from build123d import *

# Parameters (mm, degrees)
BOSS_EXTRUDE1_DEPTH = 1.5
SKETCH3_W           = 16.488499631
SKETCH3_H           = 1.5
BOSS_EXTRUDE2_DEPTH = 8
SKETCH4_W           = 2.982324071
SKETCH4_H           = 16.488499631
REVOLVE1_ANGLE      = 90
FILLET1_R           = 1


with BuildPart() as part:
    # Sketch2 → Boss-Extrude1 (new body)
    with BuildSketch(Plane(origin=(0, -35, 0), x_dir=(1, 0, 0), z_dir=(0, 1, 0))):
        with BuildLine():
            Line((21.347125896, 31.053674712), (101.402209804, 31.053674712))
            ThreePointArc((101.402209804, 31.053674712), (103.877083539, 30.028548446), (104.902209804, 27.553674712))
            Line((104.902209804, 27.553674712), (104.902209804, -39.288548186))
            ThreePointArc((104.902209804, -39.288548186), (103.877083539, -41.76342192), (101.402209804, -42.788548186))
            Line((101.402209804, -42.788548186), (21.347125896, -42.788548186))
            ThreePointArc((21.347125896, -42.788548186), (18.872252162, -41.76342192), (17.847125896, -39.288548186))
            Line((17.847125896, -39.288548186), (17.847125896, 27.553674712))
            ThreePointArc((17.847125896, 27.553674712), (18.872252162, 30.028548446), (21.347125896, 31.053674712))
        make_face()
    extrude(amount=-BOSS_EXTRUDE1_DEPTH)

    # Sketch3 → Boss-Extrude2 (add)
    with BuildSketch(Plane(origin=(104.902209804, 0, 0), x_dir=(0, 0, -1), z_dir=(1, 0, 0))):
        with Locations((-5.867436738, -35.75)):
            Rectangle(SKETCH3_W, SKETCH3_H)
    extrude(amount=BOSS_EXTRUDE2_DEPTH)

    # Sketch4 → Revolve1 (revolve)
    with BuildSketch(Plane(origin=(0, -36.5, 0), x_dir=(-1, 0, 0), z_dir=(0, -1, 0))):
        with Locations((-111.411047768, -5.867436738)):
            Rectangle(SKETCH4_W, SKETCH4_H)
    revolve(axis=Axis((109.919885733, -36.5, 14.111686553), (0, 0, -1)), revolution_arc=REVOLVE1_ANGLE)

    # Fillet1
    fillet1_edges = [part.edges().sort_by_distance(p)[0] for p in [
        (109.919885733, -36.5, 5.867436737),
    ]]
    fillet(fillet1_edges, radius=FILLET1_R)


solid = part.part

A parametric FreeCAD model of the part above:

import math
import FreeCAD as App
import Part
import Sketcher
from FreeCAD import Vector
Q = App.Units.Quantity


def edges_at(feature, points):
    """Names of the edges that pass closest to the given points."""
    edges = feature.Shape.Edges
    near = lambda p: min(range(len(edges)), key=lambda i: edges[i].distToShape(Part.Vertex(*p))[0])
    return sorted({f"Edge{near(p) + 1}" for p in points})


def add_polygon(sketch, points):
    """Adds a closed chain of lines whose ends are joined by coincident constraints."""
    first, n = sketch.GeometryCount, len(points)
    for a, b in zip(points, points[1:] + points[:1]):
        sketch.addGeometry(Part.LineSegment(App.Vector(*a, 0), App.Vector(*b, 0)), False)
    for i in range(n):
        sketch.addConstraint(Sketcher.Constraint("Coincident", first + i, 2, first + (i + 1) % n, 1))

doc = App.newDocument("Part")
params = doc.addObject("Spreadsheet::Sheet", "Params")
for row, (alias, value) in enumerate([
    ("sketch1_radius", "3.5 mm"),
    ("pad1_length", "1.5 mm"),
    ("sketch2_width", "1.5 mm"),
    ("pad2_length", "8 mm"),
    ("revolution_angle", "90 deg"),
    ("fillet_radius", "1 mm"),
], start=1):
    params.set(f"A{row}", alias)
    params.set(f"B{row}", "=" + value)
    params.setAlias(f"B{row}", alias)

body = doc.addObject("PartDesign::Body", "Body")

# Sketch on XZ plane
sketch1 = doc.addObject("Sketcher::SketchObject", "Sketch")
body.addObject(sketch1)
sketch1.AttachmentSupport = (doc.XZ_Plane, [""])
sketch1.MapMode = "FlatFace"
sketch1.AttachmentOffset = App.Placement(Vector(0, 0, 35), App.Rotation())
sketch1.addGeometry([
    Part.LineSegment(Vector(101.40221, -31.053675, 0), Vector(21.347126, -31.053675, 0)),  # 0
    Part.ArcOfCircle(Part.Circle(Vector(21.347126, -27.553675, 0), Vector(0, 0, 1), 3.5), math.radians(-180), math.radians(-90)),  # 1
    Part.LineSegment(Vector(17.847126, -27.553675, 0), Vector(17.847126, 39.288548, 0)),  # 2
    Part.ArcOfCircle(Part.Circle(Vector(21.347126, 39.288548, 0), Vector(0, 0, 1), 3.5), math.radians(90), math.radians(180)),  # 3
    Part.LineSegment(Vector(21.347126, 42.788548, 0), Vector(101.40221, 42.788548, 0)),  # 4
    Part.ArcOfCircle(Part.Circle(Vector(101.40221, 39.288548, 0), Vector(0, 0, 1), 3.5), math.radians(0), math.radians(90)),  # 5
    Part.LineSegment(Vector(104.90221, 39.288548, 0), Vector(104.90221, -27.553675, 0)),  # 6
    Part.ArcOfCircle(Part.Circle(Vector(101.40221, -27.553675, 0), Vector(0, 0, 1), 3.5), math.radians(-90), math.radians(0)),  # 7
], False)
sketch1.addConstraint([
    Sketcher.Constraint("Tangent", 0, 2, 1, 2),
    Sketcher.Constraint("Tangent", 1, 1, 2, 1),
    Sketcher.Constraint("Tangent", 2, 2, 3, 2),
    Sketcher.Constraint("Tangent", 3, 1, 4, 1),
    Sketcher.Constraint("Tangent", 4, 2, 5, 2),
    Sketcher.Constraint("Tangent", 5, 1, 6, 1),
    Sketcher.Constraint("Tangent", 6, 2, 7, 2),
    Sketcher.Constraint("Tangent", 7, 1, 0, 1),
    Sketcher.Constraint("Horizontal", 0),
    Sketcher.Constraint("Vertical", 2),
    Sketcher.Constraint("Horizontal", 4),
    Sketcher.Constraint("Vertical", 6),
    Sketcher.Constraint("Equal", 1, 3),
    Sketcher.Constraint("Equal", 3, 5),
    Sketcher.Constraint("Equal", 5, 7),
    Sketcher.Constraint("Radius", 1, Q("3.5 mm")),
    Sketcher.Constraint("DistanceX", 0, 2, 0, 1, Q("80.055084 mm")),
    Sketcher.Constraint("DistanceY", 2, 1, 2, 2, Q("66.842223 mm")),
    Sketcher.Constraint("DistanceY", -1, 1, 3, 3, Q("39.288548 mm")),
    Sketcher.Constraint("DistanceX", -1, 1, 5, 3, Q("101.40221 mm")),
])
sketch1.setExpression("Constraints[15]", "Params.sketch1_radius")
pad1 = doc.addObject("PartDesign::Pad", "Pad")
body.addObject(pad1)
pad1.Profile = sketch1
pad1.setExpression("Length", "Params.pad1_length")

# Sketch on YZ plane
sketch2 = doc.addObject("Sketcher::SketchObject", "Sketch001")
body.addObject(sketch2)
sketch2.AttachmentSupport = (doc.YZ_Plane, [""])
sketch2.MapMode = "FlatFace"
sketch2.AttachmentOffset = App.Placement(Vector(0, 0, 104.90221), App.Rotation())
add_polygon(sketch2, [(-35, 14.111687), (-36.5, 14.111687), (-36.5, -2.376813), (-35, -2.376813)])  # lines 0-3
sketch2.addConstraint([
    Sketcher.Constraint("Horizontal", 0),
    Sketcher.Constraint("Vertical", 1),
    Sketcher.Constraint("Horizontal", 2),
    Sketcher.Constraint("Vertical", 3),
    Sketcher.Constraint("DistanceX", 0, 2, 0, 1, Q("1.5 mm")),
    Sketcher.Constraint("DistanceX", 2, 2, -1, 1, Q("35 mm")),
    Sketcher.Constraint("DistanceY", 1, 2, 1, 1, Q("16.4885 mm")),
    Sketcher.Constraint("DistanceY", -1, 1, 0, 2, Q("14.111687 mm")),
])
sketch2.setExpression("Constraints[8]", "Params.sketch2_width")
pad2 = doc.addObject("PartDesign::Pad", "Pad001")
body.addObject(pad2)
pad2.Profile = sketch2
pad2.setExpression("Length", "Params.pad2_length")

# Sketch on XZ plane
sketch3 = doc.addObject("Sketcher::SketchObject", "Sketch002")
body.addObject(sketch3)
sketch3.AttachmentSupport = (doc.XZ_Plane, [""])
sketch3.MapMode = "FlatFace"
sketch3.AttachmentOffset = App.Placement(Vector(0, 0, 36.5), App.Rotation())
add_polygon(sketch3, [(112.90221, -2.376813), (112.90221, 14.111687), (109.919886, 14.111687), (109.919886, -2.376813)])  # lines 0-3
sketch3.addGeometry(Part.LineSegment(Vector(109.919886, 14.111687, 0), Vector(109.919886, -2.376813, 0)), True)  # axis
sketch3.addConstraint([
    Sketcher.Constraint("Vertical", 0),
    Sketcher.Constraint("Horizontal", 1),
    Sketcher.Constraint("Vertical", 2),
    Sketcher.Constraint("Horizontal", 3),
    Sketcher.Constraint("Vertical", 4),
    Sketcher.Constraint("Coincident", 4, 1, 1, 2),
    Sketcher.Constraint("Horizontal", 3, 2, 4, 2),
    Sketcher.Constraint("DistanceY", 0, 1, 0, 2, Q("16.4885 mm")),
    Sketcher.Constraint("DistanceX", 1, 2, 1, 1, Q("2.982324 mm")),
    Sketcher.Constraint("DistanceX", -1, 1, 0, 2, Q("112.90221 mm")),
    Sketcher.Constraint("DistanceY", -1, 1, 0, 2, Q("14.111687 mm")),
])
revolution = doc.addObject("PartDesign::Revolution", "Revolution")
body.addObject(revolution)
revolution.Profile = sketch3
revolution.ReferenceAxis = (sketch3, ["Axis0"])
revolution.setExpression("Angle", "Params.revolution_angle")
doc.recompute()

fillet = doc.addObject("PartDesign::Fillet", "Fillet")
body.addObject(fillet)
fillet.Base = (revolution, edges_at(revolution, [(109.92, -36.5, 5.867)]))
fillet.setExpression("Radius", "Params.fillet_radius")

doc.recompute()
